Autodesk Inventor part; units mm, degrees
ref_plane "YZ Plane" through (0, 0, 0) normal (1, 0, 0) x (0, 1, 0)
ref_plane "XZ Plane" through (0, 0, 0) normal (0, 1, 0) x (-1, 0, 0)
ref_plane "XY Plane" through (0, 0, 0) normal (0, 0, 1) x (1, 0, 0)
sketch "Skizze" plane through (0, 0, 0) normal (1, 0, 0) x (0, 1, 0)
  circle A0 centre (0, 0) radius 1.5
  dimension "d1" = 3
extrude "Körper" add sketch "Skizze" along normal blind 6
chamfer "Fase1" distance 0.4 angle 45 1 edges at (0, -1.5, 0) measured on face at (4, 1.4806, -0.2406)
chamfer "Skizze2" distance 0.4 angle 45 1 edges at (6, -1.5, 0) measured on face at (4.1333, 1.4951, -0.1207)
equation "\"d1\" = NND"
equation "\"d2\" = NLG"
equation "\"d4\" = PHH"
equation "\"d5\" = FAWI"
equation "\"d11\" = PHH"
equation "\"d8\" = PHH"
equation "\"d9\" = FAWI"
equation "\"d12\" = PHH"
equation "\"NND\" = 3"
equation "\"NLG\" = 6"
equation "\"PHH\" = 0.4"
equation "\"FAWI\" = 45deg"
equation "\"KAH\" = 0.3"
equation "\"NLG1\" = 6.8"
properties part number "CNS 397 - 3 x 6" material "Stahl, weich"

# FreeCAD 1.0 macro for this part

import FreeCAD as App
import Part
import Sketcher
Q = App.Units.Quantity


def edges_at(feature, points):
    """Names of the edges that pass closest to the given points."""
    edges = feature.Shape.Edges
    near = lambda p: min(range(len(edges)), key=lambda i: edges[i].distToShape(Part.Vertex(*p))[0])
    return sorted({f"Edge{near(p) + 1}" for p in points})

doc = App.newDocument("Part")
body = doc.addObject("PartDesign::Body", "Body")

# Sketch on YZ plane
sketch1 = doc.addObject("Sketcher::SketchObject", "Sketch")
body.addObject(sketch1)
sketch1.AttachmentSupport = (doc.YZ_Plane, [""])
sketch1.MapMode = "FlatFace"
sketch1.addGeometry(Part.Circle(App.Vector(0, 0, 0), App.Vector(0, 0, 1), 1.5), False)
sketch1.addConstraint(Sketcher.Constraint("Coincident", 0, 3, -1, 1))
sketch1.addConstraint(Sketcher.Constraint("Diameter", 0, Q("3 mm")))
pad1 = doc.addObject("PartDesign::Pad", "Pad")
body.addObject(pad1)
pad1.Profile = sketch1
pad1.Length = 6
doc.recompute()

chamfer = doc.addObject("PartDesign::Chamfer", "Chamfer")
body.addObject(chamfer)
chamfer.Base = (pad1, edges_at(pad1, [(0, -1.5, 0)]))
chamfer.Size = 0.4
doc.recompute()

chamfer2 = doc.addObject("PartDesign::Chamfer", "Chamfer001")
body.addObject(chamfer2)
chamfer2.Base = (chamfer, edges_at(chamfer, [(6, -1.5, 0)]))
chamfer2.Size = 0.4

doc.recompute()
